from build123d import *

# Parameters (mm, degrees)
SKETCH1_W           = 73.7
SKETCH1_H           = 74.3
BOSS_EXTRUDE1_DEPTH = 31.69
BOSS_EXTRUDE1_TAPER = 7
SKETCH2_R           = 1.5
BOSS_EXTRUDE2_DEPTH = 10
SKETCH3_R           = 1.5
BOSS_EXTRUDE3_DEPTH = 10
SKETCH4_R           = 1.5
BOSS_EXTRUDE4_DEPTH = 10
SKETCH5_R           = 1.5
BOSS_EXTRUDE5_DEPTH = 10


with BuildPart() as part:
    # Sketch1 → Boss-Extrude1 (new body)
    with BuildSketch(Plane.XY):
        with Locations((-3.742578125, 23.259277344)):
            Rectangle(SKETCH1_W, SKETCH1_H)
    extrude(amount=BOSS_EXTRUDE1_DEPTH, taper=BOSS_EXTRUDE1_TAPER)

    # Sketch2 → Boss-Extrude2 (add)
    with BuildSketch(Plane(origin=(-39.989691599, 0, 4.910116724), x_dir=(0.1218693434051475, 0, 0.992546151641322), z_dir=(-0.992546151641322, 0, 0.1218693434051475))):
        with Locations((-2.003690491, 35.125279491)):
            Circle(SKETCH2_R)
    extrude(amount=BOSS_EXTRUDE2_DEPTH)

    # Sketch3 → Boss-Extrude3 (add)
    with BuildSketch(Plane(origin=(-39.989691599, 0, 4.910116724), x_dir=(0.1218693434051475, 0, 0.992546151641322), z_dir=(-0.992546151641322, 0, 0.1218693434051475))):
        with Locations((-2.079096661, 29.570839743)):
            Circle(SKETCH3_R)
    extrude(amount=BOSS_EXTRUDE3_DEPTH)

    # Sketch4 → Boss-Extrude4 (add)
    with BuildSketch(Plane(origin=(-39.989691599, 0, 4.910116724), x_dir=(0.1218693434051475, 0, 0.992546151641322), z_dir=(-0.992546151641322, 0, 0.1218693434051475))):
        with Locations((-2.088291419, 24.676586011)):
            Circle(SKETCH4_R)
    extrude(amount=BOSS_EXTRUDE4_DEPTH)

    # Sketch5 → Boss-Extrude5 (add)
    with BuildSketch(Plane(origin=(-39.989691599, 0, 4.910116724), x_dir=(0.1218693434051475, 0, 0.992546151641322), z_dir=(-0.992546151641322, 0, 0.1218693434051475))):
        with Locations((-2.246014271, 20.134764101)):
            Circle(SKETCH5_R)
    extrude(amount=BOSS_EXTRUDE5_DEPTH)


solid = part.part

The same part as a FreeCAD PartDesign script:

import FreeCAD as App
import Part
import Sketcher

V = App.Vector
Q = App.Units.Quantity

doc = App.newDocument("Part")
params = doc.addObject("Spreadsheet::Sheet", "Params")
for row, (alias, value) in enumerate([
    ("sketch1_width", "73.7 mm"),
    ("sketch1_height", "74.3 mm"),
    ("pad1_length", "31.69 mm"),
    ("pad1_taper", "-7 deg"),
    ("sketch2_diameter", "3 mm"),
    ("pad2_length", "10 mm"),
    ("sketch3_diameter", "3 mm"),
    ("pad3_length", "10 mm"),
    ("sketch4_diameter", "3 mm"),
    ("pad4_length", "10 mm"),
    ("sketch5_diameter", "3 mm"),
    ("pad5_length", "10 mm"),
], start=1):
    params.set(f"A{row}", alias)
    params.set(f"B{row}", "=" + value)
    params.setAlias(f"B{row}", alias)

body = doc.addObject("PartDesign::Body", "Body")

# Sketch on XY plane
sketch1 = doc.addObject("Sketcher::SketchObject", "Sketch")
body.addObject(sketch1)
sketch1.AttachmentSupport = (doc.XY_Plane, [""])
sketch1.MapMode = "FlatFace"
sketch1.addGeometry(Part.LineSegment(V(-40.592578, 60.409277, 0), V(-40.592578, -13.890723, 0)), False)
sketch1.addGeometry(Part.LineSegment(V(-40.592578, -13.890723, 0), V(33.107422, -13.890723, 0)), False)
sketch1.addGeometry(Part.LineSegment(V(33.107422, -13.890723, 0), V(33.107422, 60.409277, 0)), False)
sketch1.addGeometry(Part.LineSegment(V(33.107422, 60.409277, 0), V(-40.592578, 60.409277, 0)), False)
sketch1.addConstraint(Sketcher.Constraint("Coincident", 0, 2, 1, 1))
sketch1.addConstraint(Sketcher.Constraint("Coincident", 1, 2, 2, 1))
sketch1.addConstraint(Sketcher.Constraint("Coincident", 2, 2, 3, 1))
sketch1.addConstraint(Sketcher.Constraint("Coincident", 3, 2, 0, 1))
sketch1.addConstraint(Sketcher.Constraint("Vertical", 0))
sketch1.addConstraint(Sketcher.Constraint("Horizontal", 1))
sketch1.addConstraint(Sketcher.Constraint("Vertical", 2))
sketch1.addConstraint(Sketcher.Constraint("Horizontal", 3))
sketch1.addConstraint(Sketcher.Constraint("DistanceX", 1, 1, 1, 2, Q("73.7 mm")))
sketch1.addConstraint(Sketcher.Constraint("DistanceY", 0, 2, 0, 1, Q("74.3 mm")))
sketch1.addConstraint(Sketcher.Constraint("DistanceX", 0, 2, -1, 1, Q("40.592578 mm")))
sketch1.addConstraint(Sketcher.Constraint("DistanceY", 0, 2, -1, 1, Q("13.890723 mm")))
sketch1.setExpression("Constraints[8]", "Params.sketch1_width")
sketch1.setExpression("Constraints[9]", "Params.sketch1_height")
pad1 = doc.addObject("PartDesign::Pad", "Pad")
body.addObject(pad1)
pad1.Profile = sketch1
pad1.setExpression("Length", "Params.pad1_length")
pad1.setExpression("TaperAngle", "Params.pad1_taper")

# Sketch on an angled plane
sketch2 = doc.addObject("Sketcher::SketchObject", "Sketch001")
body.addObject(sketch2)
sketch2.Placement = App.Placement(V(-39.989692, 0, 4.910117), App.Rotation(V(0.121869343, 0, 0.992546152), V(0, 1.000000001, 0), V(-0.992546152, 0, 0.121869343), "ZXY"))
sketch2.addGeometry(Part.Circle(V(-2.00369, 35.12528, 0), V(0, 0, 1), 1.5), False)
sketch2.addConstraint(Sketcher.Constraint("Diameter", 0, Q("3 mm")))
sketch2.addConstraint(Sketcher.Constraint("DistanceX", 0, 3, -1, 1, Q("2.00369 mm")))
sketch2.addConstraint(Sketcher.Constraint("DistanceY", -1, 1, 0, 3, Q("35.12528 mm")))
sketch2.setExpression("Constraints[0]", "Params.sketch2_diameter")
pad2 = doc.addObject("PartDesign::Pad", "Pad001")
body.addObject(pad2)
pad2.Profile = sketch2
pad2.setExpression("Length", "Params.pad2_length")

# Sketch on an angled plane
sketch3 = doc.addObject("Sketcher::SketchObject", "Sketch002")
body.addObject(sketch3)
sketch3.Placement = App.Placement(V(-39.989692, 0, 4.910117), App.Rotation(V(0.121869343, 0, 0.992546152), V(0, 1.000000001, 0), V(-0.992546152, 0, 0.121869343), "ZXY"))
sketch3.addGeometry(Part.Circle(V(-2.079097, 29.57084, 0), V(0, 0, 1), 1.5), False)
sketch3.addConstraint(Sketcher.Constraint("Diameter", 0, Q("3 mm")))
sketch3.addConstraint(Sketcher.Constraint("DistanceY", -1, 1, 0, 3, Q("29.57084 mm")))
sketch3.addConstraint(Sketcher.Constraint("DistanceX", 0, 3, -1, 1, Q("2.079097 mm")))
sketch3.setExpression("Constraints[0]", "Params.sketch3_diameter")
pad3 = doc.addObject("PartDesign::Pad", "Pad002")
body.addObject(pad3)
pad3.Profile = sketch3
pad3.setExpression("Length", "Params.pad3_length")

# Sketch on an angled plane
sketch4 = doc.addObject("Sketcher::SketchObject", "Sketch003")
body.addObject(sketch4)
sketch4.Placement = App.Placement(V(-39.989692, 0, 4.910117), App.Rotation(V(0.121869343, 0, 0.992546152), V(0, 1.000000001, 0), V(-0.992546152, 0, 0.121869343), "ZXY"))
sketch4.addGeometry(Part.Circle(V(-2.088291, 24.676586, 0), V(0, 0, 1), 1.5), False)
sketch4.addConstraint(Sketcher.Constraint("Diameter", 0, Q("3 mm")))
sketch4.addConstraint(Sketcher.Constraint("DistanceX", 0, 3, -1, 1, Q("2.088291 mm")))
sketch4.addConstraint(Sketcher.Constraint("DistanceY", -1, 1, 0, 3, Q("24.676586 mm")))
sketch4.setExpression("Constraints[0]", "Params.sketch4_diameter")
pad4 = doc.addObject("PartDesign::Pad", "Pad003")
body.addObject(pad4)
pad4.Profile = sketch4
pad4.setExpression("Length", "Params.pad4_length")

# Sketch on an angled plane
sketch5 = doc.addObject("Sketcher::SketchObject", "Sketch004")
body.addObject(sketch5)
sketch5.Placement = App.Placement(V(-39.989692, 0, 4.910117), App.Rotation(V(0.121869343, 0, 0.992546152), V(0, 1.000000001, 0), V(-0.992546152, 0, 0.121869343), "ZXY"))
sketch5.addGeometry(Part.Circle(V(-2.246014, 20.134764, 0), V(0, 0, 1), 1.5), False)
sketch5.addConstraint(Sketcher.Constraint("Diameter", 0, Q("3 mm")))
sketch5.addConstraint(Sketcher.Constraint("DistanceX", 0, 3, -1, 1, Q("2.246014 mm")))
sketch5.addConstraint(Sketcher.Constraint("DistanceY", -1, 1, 0, 3, Q("20.134764 mm")))
sketch5.setExpression("Constraints[0]", "Params.sketch5_diameter")
pad5 = doc.addObject("PartDesign::Pad", "Pad004")
body.addObject(pad5)
pad5.Profile = sketch5
pad5.setExpression("Length", "Params.pad5_length")

doc.recompute()
